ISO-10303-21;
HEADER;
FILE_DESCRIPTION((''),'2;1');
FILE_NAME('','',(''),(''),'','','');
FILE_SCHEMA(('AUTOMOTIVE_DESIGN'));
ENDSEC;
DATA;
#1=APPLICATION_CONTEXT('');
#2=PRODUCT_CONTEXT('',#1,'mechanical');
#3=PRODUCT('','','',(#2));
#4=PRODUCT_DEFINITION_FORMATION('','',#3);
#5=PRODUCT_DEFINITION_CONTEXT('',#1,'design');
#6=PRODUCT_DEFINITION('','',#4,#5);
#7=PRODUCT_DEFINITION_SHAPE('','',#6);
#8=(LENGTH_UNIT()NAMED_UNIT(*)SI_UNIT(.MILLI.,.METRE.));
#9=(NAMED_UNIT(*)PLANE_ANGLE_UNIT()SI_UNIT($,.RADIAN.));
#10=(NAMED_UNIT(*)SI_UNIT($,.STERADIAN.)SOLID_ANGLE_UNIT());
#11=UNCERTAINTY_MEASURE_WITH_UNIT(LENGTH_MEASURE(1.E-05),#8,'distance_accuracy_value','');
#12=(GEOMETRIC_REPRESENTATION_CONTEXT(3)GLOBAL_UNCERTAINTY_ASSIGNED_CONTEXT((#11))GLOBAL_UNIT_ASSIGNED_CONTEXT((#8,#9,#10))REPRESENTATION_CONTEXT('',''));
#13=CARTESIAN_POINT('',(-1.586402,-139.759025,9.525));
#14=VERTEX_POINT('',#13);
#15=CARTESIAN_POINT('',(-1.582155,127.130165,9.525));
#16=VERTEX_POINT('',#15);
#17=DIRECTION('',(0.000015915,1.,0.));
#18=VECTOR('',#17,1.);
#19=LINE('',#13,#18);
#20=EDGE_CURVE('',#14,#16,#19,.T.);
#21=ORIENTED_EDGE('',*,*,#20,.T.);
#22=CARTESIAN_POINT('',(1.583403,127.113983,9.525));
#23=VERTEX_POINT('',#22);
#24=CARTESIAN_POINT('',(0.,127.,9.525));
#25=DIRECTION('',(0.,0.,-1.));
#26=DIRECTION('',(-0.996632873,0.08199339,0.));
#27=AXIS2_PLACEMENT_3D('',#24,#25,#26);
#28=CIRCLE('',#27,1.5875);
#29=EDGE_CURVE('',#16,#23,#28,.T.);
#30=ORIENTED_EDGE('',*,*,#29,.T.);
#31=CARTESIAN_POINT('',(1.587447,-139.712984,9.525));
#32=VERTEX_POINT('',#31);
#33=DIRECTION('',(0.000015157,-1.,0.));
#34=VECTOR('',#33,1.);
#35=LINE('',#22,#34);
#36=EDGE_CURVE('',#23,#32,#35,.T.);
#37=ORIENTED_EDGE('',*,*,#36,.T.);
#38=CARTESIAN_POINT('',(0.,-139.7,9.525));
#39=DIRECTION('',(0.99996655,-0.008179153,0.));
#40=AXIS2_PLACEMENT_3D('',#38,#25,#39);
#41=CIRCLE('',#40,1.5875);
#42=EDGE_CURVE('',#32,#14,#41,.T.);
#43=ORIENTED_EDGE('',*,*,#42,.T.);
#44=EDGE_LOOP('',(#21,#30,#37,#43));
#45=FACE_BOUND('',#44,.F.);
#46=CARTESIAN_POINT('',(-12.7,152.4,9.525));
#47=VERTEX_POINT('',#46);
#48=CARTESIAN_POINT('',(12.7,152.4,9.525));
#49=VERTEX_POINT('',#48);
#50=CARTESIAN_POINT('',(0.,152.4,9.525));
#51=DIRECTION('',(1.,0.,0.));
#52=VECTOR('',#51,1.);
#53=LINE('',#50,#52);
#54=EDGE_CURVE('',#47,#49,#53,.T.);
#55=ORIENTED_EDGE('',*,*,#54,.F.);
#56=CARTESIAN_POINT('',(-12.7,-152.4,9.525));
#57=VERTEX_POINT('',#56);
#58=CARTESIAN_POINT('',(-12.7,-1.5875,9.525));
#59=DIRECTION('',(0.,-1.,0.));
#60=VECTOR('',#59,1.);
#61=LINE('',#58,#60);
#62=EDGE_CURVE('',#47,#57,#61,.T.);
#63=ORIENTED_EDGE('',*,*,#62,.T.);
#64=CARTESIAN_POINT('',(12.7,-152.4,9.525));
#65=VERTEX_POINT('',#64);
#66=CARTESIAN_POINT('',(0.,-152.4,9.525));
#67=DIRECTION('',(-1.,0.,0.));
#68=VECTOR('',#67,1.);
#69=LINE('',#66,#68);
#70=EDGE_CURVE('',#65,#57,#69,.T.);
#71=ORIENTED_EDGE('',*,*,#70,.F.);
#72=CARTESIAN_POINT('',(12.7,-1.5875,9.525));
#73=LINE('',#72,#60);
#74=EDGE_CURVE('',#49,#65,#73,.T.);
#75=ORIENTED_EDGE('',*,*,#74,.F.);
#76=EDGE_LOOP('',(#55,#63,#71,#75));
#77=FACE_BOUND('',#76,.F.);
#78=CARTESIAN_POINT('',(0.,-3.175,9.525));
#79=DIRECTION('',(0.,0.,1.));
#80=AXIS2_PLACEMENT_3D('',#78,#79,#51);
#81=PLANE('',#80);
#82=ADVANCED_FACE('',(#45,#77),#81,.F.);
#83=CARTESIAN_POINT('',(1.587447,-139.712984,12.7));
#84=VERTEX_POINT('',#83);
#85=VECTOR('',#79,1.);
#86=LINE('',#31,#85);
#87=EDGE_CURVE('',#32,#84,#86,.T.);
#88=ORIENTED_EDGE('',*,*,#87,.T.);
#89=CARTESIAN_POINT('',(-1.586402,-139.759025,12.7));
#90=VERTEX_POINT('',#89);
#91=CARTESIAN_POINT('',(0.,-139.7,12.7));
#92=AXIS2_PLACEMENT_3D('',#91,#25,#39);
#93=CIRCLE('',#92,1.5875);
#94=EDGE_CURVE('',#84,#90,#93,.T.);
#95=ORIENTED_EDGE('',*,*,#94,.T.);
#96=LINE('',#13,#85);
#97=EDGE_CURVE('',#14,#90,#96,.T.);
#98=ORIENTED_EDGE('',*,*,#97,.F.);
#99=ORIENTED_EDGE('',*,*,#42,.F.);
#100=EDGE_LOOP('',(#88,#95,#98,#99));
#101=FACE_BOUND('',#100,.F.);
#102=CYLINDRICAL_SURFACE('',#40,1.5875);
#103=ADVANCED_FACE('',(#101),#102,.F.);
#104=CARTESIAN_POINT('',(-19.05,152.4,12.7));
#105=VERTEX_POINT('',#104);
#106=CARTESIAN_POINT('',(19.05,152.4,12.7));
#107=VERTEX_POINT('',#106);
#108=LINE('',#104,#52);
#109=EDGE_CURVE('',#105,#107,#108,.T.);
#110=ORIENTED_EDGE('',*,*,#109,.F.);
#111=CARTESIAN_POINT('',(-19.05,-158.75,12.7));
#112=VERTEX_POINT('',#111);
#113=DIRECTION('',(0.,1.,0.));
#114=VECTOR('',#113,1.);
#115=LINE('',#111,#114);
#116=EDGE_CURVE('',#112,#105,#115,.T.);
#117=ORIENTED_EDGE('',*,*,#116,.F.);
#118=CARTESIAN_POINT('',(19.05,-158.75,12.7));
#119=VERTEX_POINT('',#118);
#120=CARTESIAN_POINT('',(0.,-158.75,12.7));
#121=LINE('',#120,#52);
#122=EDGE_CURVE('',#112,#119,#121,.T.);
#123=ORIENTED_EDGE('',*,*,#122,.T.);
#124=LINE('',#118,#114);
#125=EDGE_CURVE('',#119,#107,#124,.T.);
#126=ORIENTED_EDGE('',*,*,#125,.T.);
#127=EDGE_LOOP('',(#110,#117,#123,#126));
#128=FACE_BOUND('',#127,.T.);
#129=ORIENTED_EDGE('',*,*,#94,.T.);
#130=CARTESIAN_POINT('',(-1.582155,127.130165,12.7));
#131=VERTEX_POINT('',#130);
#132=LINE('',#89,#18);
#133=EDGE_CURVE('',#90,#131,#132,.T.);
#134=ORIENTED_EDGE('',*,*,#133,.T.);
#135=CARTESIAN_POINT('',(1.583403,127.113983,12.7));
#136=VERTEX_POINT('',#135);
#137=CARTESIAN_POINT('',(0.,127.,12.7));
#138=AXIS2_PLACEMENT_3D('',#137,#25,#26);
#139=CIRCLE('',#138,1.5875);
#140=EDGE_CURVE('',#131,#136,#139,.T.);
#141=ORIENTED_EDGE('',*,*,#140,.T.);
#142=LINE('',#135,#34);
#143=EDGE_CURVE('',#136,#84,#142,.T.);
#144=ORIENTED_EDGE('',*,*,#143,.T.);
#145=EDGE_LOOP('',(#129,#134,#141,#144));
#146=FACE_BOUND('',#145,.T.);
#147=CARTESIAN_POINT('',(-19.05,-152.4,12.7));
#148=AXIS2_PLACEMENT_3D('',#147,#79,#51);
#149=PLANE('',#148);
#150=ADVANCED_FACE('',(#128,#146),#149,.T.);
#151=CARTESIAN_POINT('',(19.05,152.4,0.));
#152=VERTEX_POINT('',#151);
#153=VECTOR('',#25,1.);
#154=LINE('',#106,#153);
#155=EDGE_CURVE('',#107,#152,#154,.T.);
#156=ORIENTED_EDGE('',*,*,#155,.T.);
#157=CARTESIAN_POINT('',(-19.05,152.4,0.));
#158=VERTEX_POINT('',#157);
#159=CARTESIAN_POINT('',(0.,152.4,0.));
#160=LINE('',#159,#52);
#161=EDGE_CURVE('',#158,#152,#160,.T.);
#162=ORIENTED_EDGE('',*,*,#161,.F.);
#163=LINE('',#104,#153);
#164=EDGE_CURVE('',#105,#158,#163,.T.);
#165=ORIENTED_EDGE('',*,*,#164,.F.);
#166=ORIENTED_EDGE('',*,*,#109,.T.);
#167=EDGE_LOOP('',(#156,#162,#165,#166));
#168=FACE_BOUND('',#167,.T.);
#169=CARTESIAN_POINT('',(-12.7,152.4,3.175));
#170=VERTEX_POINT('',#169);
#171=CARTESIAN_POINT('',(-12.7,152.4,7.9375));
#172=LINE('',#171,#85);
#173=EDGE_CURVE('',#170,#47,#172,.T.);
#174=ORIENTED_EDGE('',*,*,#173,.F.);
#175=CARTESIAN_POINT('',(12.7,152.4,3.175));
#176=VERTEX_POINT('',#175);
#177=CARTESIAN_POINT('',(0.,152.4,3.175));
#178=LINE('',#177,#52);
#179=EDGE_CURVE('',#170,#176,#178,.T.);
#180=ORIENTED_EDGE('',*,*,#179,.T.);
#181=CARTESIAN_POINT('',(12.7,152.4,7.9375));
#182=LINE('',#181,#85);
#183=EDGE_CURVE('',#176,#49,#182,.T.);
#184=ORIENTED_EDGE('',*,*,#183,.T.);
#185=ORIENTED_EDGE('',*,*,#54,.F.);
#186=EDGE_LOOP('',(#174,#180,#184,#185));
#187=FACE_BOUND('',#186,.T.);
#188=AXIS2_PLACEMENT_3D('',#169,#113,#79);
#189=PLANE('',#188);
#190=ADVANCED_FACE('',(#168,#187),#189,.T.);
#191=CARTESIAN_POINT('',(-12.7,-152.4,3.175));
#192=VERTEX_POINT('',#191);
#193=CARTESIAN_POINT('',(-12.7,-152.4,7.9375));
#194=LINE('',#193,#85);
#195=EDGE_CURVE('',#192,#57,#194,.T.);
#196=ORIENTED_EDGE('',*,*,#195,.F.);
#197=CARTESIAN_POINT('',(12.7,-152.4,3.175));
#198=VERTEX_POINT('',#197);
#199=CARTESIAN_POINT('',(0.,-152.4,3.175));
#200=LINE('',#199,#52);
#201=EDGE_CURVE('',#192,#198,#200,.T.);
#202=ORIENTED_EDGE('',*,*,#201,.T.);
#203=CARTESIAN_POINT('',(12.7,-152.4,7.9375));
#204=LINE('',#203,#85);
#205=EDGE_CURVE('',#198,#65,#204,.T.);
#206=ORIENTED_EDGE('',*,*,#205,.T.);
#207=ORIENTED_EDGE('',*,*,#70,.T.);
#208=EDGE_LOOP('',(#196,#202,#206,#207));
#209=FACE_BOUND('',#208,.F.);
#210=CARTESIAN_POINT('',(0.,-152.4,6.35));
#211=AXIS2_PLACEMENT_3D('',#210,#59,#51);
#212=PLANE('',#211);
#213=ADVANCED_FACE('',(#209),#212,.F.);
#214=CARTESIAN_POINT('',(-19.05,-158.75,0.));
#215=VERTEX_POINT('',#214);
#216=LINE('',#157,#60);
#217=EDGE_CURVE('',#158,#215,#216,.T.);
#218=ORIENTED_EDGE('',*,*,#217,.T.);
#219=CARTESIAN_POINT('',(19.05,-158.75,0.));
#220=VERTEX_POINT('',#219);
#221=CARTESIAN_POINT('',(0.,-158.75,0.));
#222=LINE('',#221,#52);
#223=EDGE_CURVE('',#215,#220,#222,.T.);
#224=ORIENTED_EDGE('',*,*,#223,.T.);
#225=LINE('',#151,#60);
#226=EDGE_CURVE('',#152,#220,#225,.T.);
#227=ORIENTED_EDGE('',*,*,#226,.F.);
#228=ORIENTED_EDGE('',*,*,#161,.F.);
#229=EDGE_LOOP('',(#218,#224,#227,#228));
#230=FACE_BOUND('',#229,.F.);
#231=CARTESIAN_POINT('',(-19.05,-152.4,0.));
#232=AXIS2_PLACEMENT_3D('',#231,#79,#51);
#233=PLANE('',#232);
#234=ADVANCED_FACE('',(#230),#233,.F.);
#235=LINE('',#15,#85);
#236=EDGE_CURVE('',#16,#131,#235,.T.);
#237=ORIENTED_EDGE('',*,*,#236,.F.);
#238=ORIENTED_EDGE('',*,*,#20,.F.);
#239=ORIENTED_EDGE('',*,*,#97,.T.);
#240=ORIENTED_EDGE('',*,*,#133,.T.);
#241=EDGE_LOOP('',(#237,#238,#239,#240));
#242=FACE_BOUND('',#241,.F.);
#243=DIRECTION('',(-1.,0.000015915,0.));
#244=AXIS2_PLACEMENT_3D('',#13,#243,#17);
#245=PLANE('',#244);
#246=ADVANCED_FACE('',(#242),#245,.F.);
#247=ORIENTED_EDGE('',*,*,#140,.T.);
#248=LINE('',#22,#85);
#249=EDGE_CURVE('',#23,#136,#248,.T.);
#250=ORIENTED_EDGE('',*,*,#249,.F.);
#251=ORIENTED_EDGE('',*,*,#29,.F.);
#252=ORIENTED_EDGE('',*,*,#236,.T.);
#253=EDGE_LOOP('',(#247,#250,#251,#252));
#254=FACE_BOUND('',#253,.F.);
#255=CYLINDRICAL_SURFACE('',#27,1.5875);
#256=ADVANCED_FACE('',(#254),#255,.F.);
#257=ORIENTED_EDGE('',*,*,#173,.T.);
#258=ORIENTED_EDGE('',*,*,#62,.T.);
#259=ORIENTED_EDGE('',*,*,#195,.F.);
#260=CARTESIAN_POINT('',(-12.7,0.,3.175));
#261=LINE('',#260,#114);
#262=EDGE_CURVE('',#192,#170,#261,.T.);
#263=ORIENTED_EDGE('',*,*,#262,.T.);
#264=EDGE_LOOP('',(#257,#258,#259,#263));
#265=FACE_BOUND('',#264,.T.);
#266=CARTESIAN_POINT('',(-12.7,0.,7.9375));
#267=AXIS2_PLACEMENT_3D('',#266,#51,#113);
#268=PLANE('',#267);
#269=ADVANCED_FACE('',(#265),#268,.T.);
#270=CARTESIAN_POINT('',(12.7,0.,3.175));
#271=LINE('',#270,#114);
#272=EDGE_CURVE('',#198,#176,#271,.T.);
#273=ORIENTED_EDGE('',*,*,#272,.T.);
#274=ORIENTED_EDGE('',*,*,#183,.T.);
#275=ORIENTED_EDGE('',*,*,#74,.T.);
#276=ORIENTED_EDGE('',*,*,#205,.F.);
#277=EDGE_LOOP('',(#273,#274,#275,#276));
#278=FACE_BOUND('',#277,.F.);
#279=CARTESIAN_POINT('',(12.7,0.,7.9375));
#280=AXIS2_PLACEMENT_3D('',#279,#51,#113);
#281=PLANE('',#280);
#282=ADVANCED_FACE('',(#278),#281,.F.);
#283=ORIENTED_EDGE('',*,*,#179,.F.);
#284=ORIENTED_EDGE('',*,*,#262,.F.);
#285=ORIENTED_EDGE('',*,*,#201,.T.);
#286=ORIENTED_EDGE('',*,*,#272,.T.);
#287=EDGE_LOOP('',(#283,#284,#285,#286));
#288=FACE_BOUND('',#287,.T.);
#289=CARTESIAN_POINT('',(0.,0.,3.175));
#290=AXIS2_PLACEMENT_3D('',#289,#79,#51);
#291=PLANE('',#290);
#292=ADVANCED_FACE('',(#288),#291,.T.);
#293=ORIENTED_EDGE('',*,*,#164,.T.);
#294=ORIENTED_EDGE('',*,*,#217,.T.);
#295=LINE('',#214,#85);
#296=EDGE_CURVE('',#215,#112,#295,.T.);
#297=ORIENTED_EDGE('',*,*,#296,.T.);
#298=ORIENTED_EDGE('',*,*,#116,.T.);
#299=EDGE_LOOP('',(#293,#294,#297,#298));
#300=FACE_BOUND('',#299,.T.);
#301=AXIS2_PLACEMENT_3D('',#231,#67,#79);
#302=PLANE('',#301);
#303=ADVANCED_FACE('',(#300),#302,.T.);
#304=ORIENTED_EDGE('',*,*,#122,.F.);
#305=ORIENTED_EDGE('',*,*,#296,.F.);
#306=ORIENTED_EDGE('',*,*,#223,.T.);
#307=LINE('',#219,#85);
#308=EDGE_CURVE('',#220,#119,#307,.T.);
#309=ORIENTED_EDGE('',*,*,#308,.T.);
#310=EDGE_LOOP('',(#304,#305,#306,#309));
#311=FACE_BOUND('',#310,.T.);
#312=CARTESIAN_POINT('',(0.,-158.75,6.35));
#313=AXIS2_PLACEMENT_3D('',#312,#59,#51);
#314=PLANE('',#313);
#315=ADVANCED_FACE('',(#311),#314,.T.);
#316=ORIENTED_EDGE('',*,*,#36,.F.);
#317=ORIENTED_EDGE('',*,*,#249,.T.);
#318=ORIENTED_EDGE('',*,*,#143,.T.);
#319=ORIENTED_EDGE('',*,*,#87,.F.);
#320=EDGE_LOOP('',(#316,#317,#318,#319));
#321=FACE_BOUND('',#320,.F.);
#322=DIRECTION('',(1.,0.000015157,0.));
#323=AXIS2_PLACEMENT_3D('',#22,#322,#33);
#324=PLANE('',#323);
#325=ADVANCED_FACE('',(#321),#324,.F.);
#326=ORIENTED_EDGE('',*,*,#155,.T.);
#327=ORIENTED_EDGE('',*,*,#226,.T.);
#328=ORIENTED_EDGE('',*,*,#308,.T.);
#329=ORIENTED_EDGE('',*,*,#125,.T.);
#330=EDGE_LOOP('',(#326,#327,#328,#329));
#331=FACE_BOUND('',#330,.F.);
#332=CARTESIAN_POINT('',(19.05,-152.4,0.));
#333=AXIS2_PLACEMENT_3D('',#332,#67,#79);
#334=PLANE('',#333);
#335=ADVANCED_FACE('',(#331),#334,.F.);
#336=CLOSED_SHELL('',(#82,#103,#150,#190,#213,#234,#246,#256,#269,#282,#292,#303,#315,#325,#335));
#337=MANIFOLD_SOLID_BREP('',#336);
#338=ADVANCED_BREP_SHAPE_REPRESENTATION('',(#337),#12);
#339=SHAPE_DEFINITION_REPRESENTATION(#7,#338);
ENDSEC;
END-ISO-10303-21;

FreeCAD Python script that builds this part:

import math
import FreeCAD as App
import Part
import Sketcher
from FreeCAD import Vector
Q = App.Units.Quantity

doc = App.newDocument("Part")
params = doc.addObject("Spreadsheet::Sheet", "Params")
for row, (alias, value) in enumerate([
    ("sketch1_height", "12 in"),
    ("sketch1_width", "1.5 in"),
    ("pad1_length", "0.125 in"),
    ("sketch2_width", "12 in"),
    ("sketch2_height", "0.375 in"),
    ("pad2_length", "0.25 in"),
    ("sketch3_width", "12 in"),
    ("sketch3_height", "0.375 in"),
    ("pad3_length", "0.25 in"),
    ("sketch4_width", "1.5 in"),
    ("sketch4_height", "0.5 in"),
    ("pad4_length", "0.25 in"),
    ("sketch5_width", "1.5 in"),
    ("sketch5_radius", "0.0625 in"),
    ("sketch5_height", "12.25 in"),
    ("pad5_length", "0.125 in"),
], start=1):
    params.set(f"A{row}", alias)
    params.set(f"B{row}", "=" + value)
    params.setAlias(f"B{row}", alias)

body = doc.addObject("PartDesign::Body", "Body")

sketch1 = doc.addObject("Sketcher::SketchObject", "Sketch")
body.addObject(sketch1)
sketch1.AttachmentSupport = (doc.XY_Plane, [""])
sketch1.MapMode = "FlatFace"
sketch1.addGeometry(Part.LineSegment(Vector(-19, 152, 0), Vector(-19, -152, 0)), False)
sketch1.addGeometry(Part.LineSegment(Vector(-19, -152, 0), Vector(19, -152, 0)), False)
sketch1.addGeometry(Part.LineSegment(Vector(19, -152, 0), Vector(19, 152, 0)), False)
sketch1.addGeometry(Part.LineSegment(Vector(19, 152, 0), Vector(-19, 152, 0)), False)
sketch1.addConstraint(Sketcher.Constraint("Coincident", 0, 2, 1, 1))
sketch1.addConstraint(Sketcher.Constraint("Coincident", 1, 2, 2, 1))
sketch1.addConstraint(Sketcher.Constraint("Coincident", 2, 2, 3, 1))
sketch1.addConstraint(Sketcher.Constraint("Coincident", 3, 2, 0, 1))
sketch1.addConstraint(Sketcher.Constraint("Vertical", 0))
sketch1.addConstraint(Sketcher.Constraint("Horizontal", 1))
sketch1.addConstraint(Sketcher.Constraint("Vertical", 2))
sketch1.addConstraint(Sketcher.Constraint("Horizontal", 3))
sketch1.addConstraint(Sketcher.Constraint("Symmetric", 0, 2, 2, 2, -1, 1))
sketch1.addConstraint(Sketcher.Constraint("DistanceY", 0, 2, 0, 1, Q("12 in")))
sketch1.addConstraint(Sketcher.Constraint("DistanceX", 1, 1, 1, 2, Q("1.5 in")))
sketch1.setExpression("Constraints[9]", "Params.sketch1_height")
sketch1.setExpression("Constraints[10]", "Params.sketch1_width")
pad1 = doc.addObject("PartDesign::Pad", "Pad")
body.addObject(pad1)
pad1.Profile = sketch1
pad1.setExpression("Length", "Params.pad1_length")

sketch2 = doc.addObject("Sketcher::SketchObject", "Sketch001")
body.addObject(sketch2)
sketch2.AttachmentSupport = (doc.YZ_Plane, [""])
sketch2.MapMode = "FlatFace"
sketch2.AttachmentOffset = App.Placement(Vector(0, 0, 0.5 * 25.4), App.Rotation())
sketch2.addGeometry(Part.LineSegment(Vector(-152, 13, 0), Vector(-152, 3, 0)), False)
sketch2.addGeometry(Part.LineSegment(Vector(-152, 3, 0), Vector(152, 3, 0)), False)
sketch2.addGeometry(Part.LineSegment(Vector(152, 3, 0), Vector(152, 13, 0)), False)
sketch2.addGeometry(Part.LineSegment(Vector(152, 13, 0), Vector(-152, 13, 0)), False)
sketch2.addConstraint(Sketcher.Constraint("Coincident", 0, 2, 1, 1))
sketch2.addConstraint(Sketcher.Constraint("Coincident", 1, 2, 2, 1))
sketch2.addConstraint(Sketcher.Constraint("Coincident", 2, 2, 3, 1))
sketch2.addConstraint(Sketcher.Constraint("Coincident", 3, 2, 0, 1))
sketch2.addConstraint(Sketcher.Constraint("Vertical", 0))
sketch2.addConstraint(Sketcher.Constraint("Horizontal", 1))
sketch2.addConstraint(Sketcher.Constraint("Vertical", 2))
sketch2.addConstraint(Sketcher.Constraint("Horizontal", 3))
sketch2.addConstraint(Sketcher.Constraint("DistanceX", 1, 1, 1, 2, Q("12 in")))
sketch2.addConstraint(Sketcher.Constraint("DistanceX", 0, 2, -1, 1, Q("6 in")))
sketch2.addConstraint(Sketcher.Constraint("DistanceY", -1, 1, 2, 2, Q("0.5 in")))
sketch2.addConstraint(Sketcher.Constraint("DistanceY", 0, 2, 0, 1, Q("0.375 in")))
sketch2.setExpression("Constraints[8]", "Params.sketch2_width")
sketch2.setExpression("Constraints[11]", "Params.sketch2_height")
pad2 = doc.addObject("PartDesign::Pad", "Pad001")
body.addObject(pad2)
pad2.Profile = sketch2
pad2.setExpression("Length", "Params.pad2_length")

sketch3 = doc.addObject("Sketcher::SketchObject", "Sketch002")
body.addObject(sketch3)
sketch3.AttachmentSupport = (doc.YZ_Plane, [""])
sketch3.MapMode = "FlatFace"
sketch3.AttachmentOffset = App.Placement(Vector(0, 0, -0.5 * 25.4), App.Rotation())
sketch3.addGeometry(Part.LineSegment(Vector(-152, 13, 0), Vector(-152, 3, 0)), False)
sketch3.addGeometry(Part.LineSegment(Vector(-152, 3, 0), Vector(152, 3, 0)), False)
sketch3.addGeometry(Part.LineSegment(Vector(152, 3, 0), Vector(152, 13, 0)), False)
sketch3.addGeometry(Part.LineSegment(Vector(152, 13, 0), Vector(-152, 13, 0)), False)
sketch3.addConstraint(Sketcher.Constraint("Coincident", 0, 2, 1, 1))
sketch3.addConstraint(Sketcher.Constraint("Coincident", 1, 2, 2, 1))
sketch3.addConstraint(Sketcher.Constraint("Coincident", 2, 2, 3, 1))
sketch3.addConstraint(Sketcher.Constraint("Coincident", 3, 2, 0, 1))
sketch3.addConstraint(Sketcher.Constraint("Vertical", 0))
sketch3.addConstraint(Sketcher.Constraint("Horizontal", 1))
sketch3.addConstraint(Sketcher.Constraint("Vertical", 2))
sketch3.addConstraint(Sketcher.Constraint("Horizontal", 3))
sketch3.addConstraint(Sketcher.Constraint("DistanceX", 1, 1, 1, 2, Q("12 in")))
sketch3.addConstraint(Sketcher.Constraint("DistanceX", 0, 2, -1, 1, Q("6 in")))
sketch3.addConstraint(Sketcher.Constraint("DistanceY", -1, 1, 2, 2, Q("0.5 in")))
sketch3.addConstraint(Sketcher.Constraint("DistanceY", 0, 2, 0, 1, Q("0.375 in")))
sketch3.setExpression("Constraints[8]", "Params.sketch3_width")
sketch3.setExpression("Constraints[11]", "Params.sketch3_height")
pad3 = doc.addObject("PartDesign::Pad", "Pad002")
body.addObject(pad3)
pad3.Profile = sketch3
pad3.setExpression("Length", "Params.pad3_length")
pad3.Reversed = True

sketch4 = doc.addObject("Sketcher::SketchObject", "Sketch003")
body.addObject(sketch4)
sketch4.AttachmentSupport = (doc.XZ_Plane, [""])
sketch4.MapMode = "FlatFace"
sketch4.AttachmentOffset = App.Placement(Vector(0, 0, 6 * 25.4), App.Rotation())
sketch4.addGeometry(Part.LineSegment(Vector(-19, 13, 0), Vector(-19, 0, 0)), False)
sketch4.addGeometry(Part.LineSegment(Vector(-19, 0, 0), Vector(19, 0, 0)), False)
sketch4.addGeometry(Part.LineSegment(Vector(19, 0, 0), Vector(19, 13, 0)), False)
sketch4.addGeometry(Part.LineSegment(Vector(19, 13, 0), Vector(-19, 13, 0)), False)
sketch4.addConstraint(Sketcher.Constraint("Coincident", 0, 2, 1, 1))
sketch4.addConstraint(Sketcher.Constraint("Coincident", 1, 2, 2, 1))
sketch4.addConstraint(Sketcher.Constraint("Coincident", 2, 2, 3, 1))
sketch4.addConstraint(Sketcher.Constraint("Coincident", 3, 2, 0, 1))
sketch4.addConstraint(Sketcher.Constraint("Vertical", 0))
sketch4.addConstraint(Sketcher.Constraint("Horizontal", 1))
sketch4.addConstraint(Sketcher.Constraint("Vertical", 2))
sketch4.addConstraint(Sketcher.Constraint("Horizontal", 3))
sketch4.addConstraint(Sketcher.Constraint("Symmetric", 0, 2, 1, 2, -1, 1))
sketch4.addConstraint(Sketcher.Constraint("DistanceX", 1, 1, 1, 2, Q("1.5 in")))
sketch4.addConstraint(Sketcher.Constraint("DistanceY", 0, 2, 0, 1, Q("0.5 in")))
sketch4.setExpression("Constraints[9]", "Params.sketch4_width")
sketch4.setExpression("Constraints[10]", "Params.sketch4_height")
pad4 = doc.addObject("PartDesign::Pad", "Pad003")
body.addObject(pad4)
pad4.Profile = sketch4
pad4.setExpression("Length", "Params.pad4_length")

sketch5 = doc.addObject("Sketcher::SketchObject", "Sketch004")
body.addObject(sketch5)
sketch5.AttachmentSupport = (doc.XY_Plane, [""])
sketch5.MapMode = "FlatFace"
sketch5.AttachmentOffset = App.Placement(Vector(0, 0, 0.375 * 25.4), App.Rotation())
sketch5.addGeometry(Part.LineSegment(Vector(-19.1, 152.4, 0), Vector(-19.1, -158.8, 0)), False)
sketch5.addGeometry(Part.LineSegment(Vector(-19.1, -158.8, 0), Vector(19.1, -158.8, 0)), False)
sketch5.addGeometry(Part.LineSegment(Vector(19.1, -158.8, 0), Vector(19.1, 152.4, 0)), False)
sketch5.addGeometry(Part.LineSegment(Vector(19.1, 152.4, 0), Vector(-19.1, 152.4, 0)), False)
sketch5.addGeometry(Part.ArcOfCircle(Part.Circle(Vector(0, 127, 0), Vector(0, 0, 1), 1.6), math.radians(4), math.radians(175)), False)
sketch5.addGeometry(Part.LineSegment(Vector(1.6, 127.1, 0), Vector(1.6, -139.7, 0)), False)
sketch5.addGeometry(Part.ArcOfCircle(Part.Circle(Vector(0, -139.7, 0), Vector(0, 0, 1), 1.6), math.radians(-178), math.radians(0)), False)
sketch5.addGeometry(Part.LineSegment(Vector(-1.6, -139.8, 0), Vector(-1.6, 127.1, 0)), False)
sketch5.addConstraint(Sketcher.Constraint("Coincident", 0, 2, 1, 1))
sketch5.addConstraint(Sketcher.Constraint("Coincident", 1, 2, 2, 1))
sketch5.addConstraint(Sketcher.Constraint("Coincident", 2, 2, 3, 1))
sketch5.addConstraint(Sketcher.Constraint("Coincident", 3, 2, 0, 1))
sketch5.addConstraint(Sketcher.Constraint("Coincident", 4, 1, 5, 1))
sketch5.addConstraint(Sketcher.Constraint("Coincident", 5, 2, 6, 2))
sketch5.addConstraint(Sketcher.Constraint("Coincident", 6, 1, 7, 1))
sketch5.addConstraint(Sketcher.Constraint("Coincident", 7, 2, 4, 2))
sketch5.addConstraint(Sketcher.Constraint("Vertical", 0))
sketch5.addConstraint(Sketcher.Constraint("Horizontal", 1))
sketch5.addConstraint(Sketcher.Constraint("Vertical", 2))
sketch5.addConstraint(Sketcher.Constraint("Horizontal", 3))
sketch5.addConstraint(Sketcher.Constraint("Equal", 4, 6))
sketch5.addConstraint(Sketcher.Constraint("PointOnObject", 4, 3, -2))
sketch5.addConstraint(Sketcher.Constraint("PointOnObject", 6, 3, -2))
sketch5.addConstraint(Sketcher.Constraint("DistanceX", 1, 1, 1, 2, Q("1.5 in")))
sketch5.addConstraint(Sketcher.Constraint("DistanceY", -1, 1, 4, 3, Q("5 in")))
sketch5.addConstraint(Sketcher.Constraint("DistanceY", -1, 1, 2, 2, Q("6 in")))
sketch5.addConstraint(Sketcher.Constraint("Radius", 4, Q("0.0625 in")))
sketch5.addConstraint(Sketcher.Constraint("DistanceY", 0, 2, 0, 1, Q("12.25 in")))
sketch5.addConstraint(Sketcher.Constraint("DistanceY", 6, 3, -1, 1, Q("5.5 in")))
sketch5.addConstraint(Sketcher.Constraint("DistanceX", 0, 2, -1, 1, Q("0.75 in")))
sketch5.addConstraint(Sketcher.Constraint("Distance", 7, Q("266.889189 mm")))
sketch5.addConstraint(Sketcher.Constraint("DistanceX", 6, 1, 5, 2, Q("3.173849 mm")))
sketch5.addConstraint(Sketcher.Constraint("DistanceY", 6, 1, 5, 2, Q("0.04604 mm")))
sketch5.addConstraint(Sketcher.Constraint("DistanceY", 4, 1, 7, 2, Q("0.016182 mm")))
sketch5.setExpression("Constraints[15]", "Params.sketch5_width")
sketch5.setExpression("Constraints[18]", "Params.sketch5_radius")
sketch5.setExpression("Constraints[19]", "Params.sketch5_height")
pad5 = doc.addObject("PartDesign::Pad", "Pad004")
body.addObject(pad5)
pad5.Profile = sketch5
pad5.setExpression("Length", "Params.pad5_length")

doc.recompute()
